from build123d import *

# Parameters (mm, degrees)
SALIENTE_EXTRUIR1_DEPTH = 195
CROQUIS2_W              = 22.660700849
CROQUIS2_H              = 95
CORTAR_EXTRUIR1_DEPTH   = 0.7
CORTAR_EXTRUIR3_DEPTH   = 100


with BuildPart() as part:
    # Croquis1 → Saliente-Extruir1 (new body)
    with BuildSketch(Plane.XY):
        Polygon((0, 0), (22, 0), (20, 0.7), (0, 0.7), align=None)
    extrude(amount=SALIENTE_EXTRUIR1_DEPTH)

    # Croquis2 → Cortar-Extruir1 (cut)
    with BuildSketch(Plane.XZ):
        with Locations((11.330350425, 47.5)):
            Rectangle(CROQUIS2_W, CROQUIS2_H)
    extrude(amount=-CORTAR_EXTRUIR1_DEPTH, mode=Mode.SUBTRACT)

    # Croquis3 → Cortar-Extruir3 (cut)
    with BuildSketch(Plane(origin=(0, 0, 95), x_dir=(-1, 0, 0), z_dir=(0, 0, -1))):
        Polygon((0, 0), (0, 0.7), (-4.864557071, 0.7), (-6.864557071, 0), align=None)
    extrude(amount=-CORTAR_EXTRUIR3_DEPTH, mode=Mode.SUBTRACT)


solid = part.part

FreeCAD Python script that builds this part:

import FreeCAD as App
import Part
import Sketcher


def add_polygon(sketch, points):
    """Adds a closed chain of lines whose ends are joined by coincident constraints."""
    first, n = sketch.GeometryCount, len(points)
    for a, b in zip(points, points[1:] + points[:1]):
        sketch.addGeometry(Part.LineSegment(App.Vector(*a, 0), App.Vector(*b, 0)), False)
    for i in range(n):
        sketch.addConstraint(Sketcher.Constraint("Coincident", first + i, 2, first + (i + 1) % n, 1))

doc = App.newDocument("Part")
params = doc.addObject("Spreadsheet::Sheet", "Params")
for row, (alias, value) in enumerate([
    ("sketch1_width", "22 mm"),
    ("sketch1_width2", "20 mm"),
    ("sketch1_height", "0.7 mm"),
    ("pad1_length", "195 mm"),
    ("sketch2_height", "95 mm"),
    ("pocket1_length", "0.7 mm"),
    ("sketch3_height", "0.7 mm"),
    ("pocket2_length", "100 mm"),
], start=1):
    params.set(f"A{row}", alias)
    params.set(f"B{row}", "=" + value)
    params.setAlias(f"B{row}", alias)

body = doc.addObject("PartDesign::Body", "Body")

sketch1 = body.newObject("Sketcher::SketchObject", "Sketch")
sketch1.AttachmentSupport = (doc.getObject("XY_Plane"), [""])
sketch1.MapMode = "FlatFace"
add_polygon(sketch1, [(0, 0), (22, 0), (20, 0.7), (0, 0.7)])
sketch1.addConstraint([
    Sketcher.Constraint("Horizontal", 0),
    Sketcher.Constraint("Horizontal", 2),
    Sketcher.Constraint("Vertical", 3),
    Sketcher.Constraint("Coincident", 3, 2, -1, 1),
    Sketcher.Constraint("DistanceX", 0, 1, 0, 2, 22.0),
    Sketcher.Constraint("DistanceX", 2, 2, 2, 1, 20.0),
    Sketcher.Constraint("DistanceY", 3, 2, 3, 1, 0.7),
])
sketch1.setExpression("Constraints[8]", "Params.sketch1_width")
sketch1.setExpression("Constraints[9]", "Params.sketch1_width2")
sketch1.setExpression("Constraints[10]", "Params.sketch1_height")
pad1 = body.newObject("PartDesign::Pad", "Pad")
pad1.Profile = sketch1
pad1.setExpression("Length", "Params.pad1_length")

sketch2 = body.newObject("Sketcher::SketchObject", "Sketch001")
sketch2.AttachmentSupport = (doc.getObject("XZ_Plane"), [""])
sketch2.MapMode = "FlatFace"
add_polygon(sketch2, [(0, 95), (0, 0), (23, 0), (23, 95)])
sketch2.addConstraint([
    Sketcher.Constraint("Vertical", 0),
    Sketcher.Constraint("Horizontal", 1),
    Sketcher.Constraint("Vertical", 2),
    Sketcher.Constraint("Horizontal", 3),
    Sketcher.Constraint("Coincident", 0, 2, -1, 1),
    Sketcher.Constraint("DistanceY", 0, 2, 0, 1, 95.0),
    Sketcher.Constraint("DistanceX", 1, 1, 1, 2, 22.660701),
])
sketch2.setExpression("Constraints[9]", "Params.sketch2_height")
pocket1 = body.newObject("PartDesign::Pocket", "Pocket")
pocket1.Profile = sketch2
pocket1.setExpression("Length", "Params.pocket1_length")

sketch3 = body.newObject("Sketcher::SketchObject", "Sketch002")
sketch3.AttachmentSupport = (doc.getObject("XY_Plane"), [""])
sketch3.MapMode = "FlatFace"
sketch3.AttachmentOffset = App.Placement(App.Vector(0, 0, 95), App.Rotation())
add_polygon(sketch3, [(0, 0), (0, 0.7), (4.9, 0.7), (6.9, 0)])
sketch3.addConstraint([
    Sketcher.Constraint("Vertical", 0),
    Sketcher.Constraint("Horizontal", 1),
    Sketcher.Constraint("Horizontal", 3),
    Sketcher.Constraint("Coincident", 3, 2, -1, 1),
    Sketcher.Constraint("DistanceY", 0, 1, 0, 2, 0.7),
    Sketcher.Constraint("DistanceX", 1, 2, 2, 2, 2.0),
    Sketcher.Constraint("DistanceX", 1, 1, 1, 2, 4.864557),
])
sketch3.setExpression("Constraints[8]", "Params.sketch3_height")
pocket2 = body.newObject("PartDesign::Pocket", "Pocket001")
pocket2.Profile = sketch3
pocket2.setExpression("Length", "Params.pocket2_length")
pocket2.Reversed = True

doc.recompute()
